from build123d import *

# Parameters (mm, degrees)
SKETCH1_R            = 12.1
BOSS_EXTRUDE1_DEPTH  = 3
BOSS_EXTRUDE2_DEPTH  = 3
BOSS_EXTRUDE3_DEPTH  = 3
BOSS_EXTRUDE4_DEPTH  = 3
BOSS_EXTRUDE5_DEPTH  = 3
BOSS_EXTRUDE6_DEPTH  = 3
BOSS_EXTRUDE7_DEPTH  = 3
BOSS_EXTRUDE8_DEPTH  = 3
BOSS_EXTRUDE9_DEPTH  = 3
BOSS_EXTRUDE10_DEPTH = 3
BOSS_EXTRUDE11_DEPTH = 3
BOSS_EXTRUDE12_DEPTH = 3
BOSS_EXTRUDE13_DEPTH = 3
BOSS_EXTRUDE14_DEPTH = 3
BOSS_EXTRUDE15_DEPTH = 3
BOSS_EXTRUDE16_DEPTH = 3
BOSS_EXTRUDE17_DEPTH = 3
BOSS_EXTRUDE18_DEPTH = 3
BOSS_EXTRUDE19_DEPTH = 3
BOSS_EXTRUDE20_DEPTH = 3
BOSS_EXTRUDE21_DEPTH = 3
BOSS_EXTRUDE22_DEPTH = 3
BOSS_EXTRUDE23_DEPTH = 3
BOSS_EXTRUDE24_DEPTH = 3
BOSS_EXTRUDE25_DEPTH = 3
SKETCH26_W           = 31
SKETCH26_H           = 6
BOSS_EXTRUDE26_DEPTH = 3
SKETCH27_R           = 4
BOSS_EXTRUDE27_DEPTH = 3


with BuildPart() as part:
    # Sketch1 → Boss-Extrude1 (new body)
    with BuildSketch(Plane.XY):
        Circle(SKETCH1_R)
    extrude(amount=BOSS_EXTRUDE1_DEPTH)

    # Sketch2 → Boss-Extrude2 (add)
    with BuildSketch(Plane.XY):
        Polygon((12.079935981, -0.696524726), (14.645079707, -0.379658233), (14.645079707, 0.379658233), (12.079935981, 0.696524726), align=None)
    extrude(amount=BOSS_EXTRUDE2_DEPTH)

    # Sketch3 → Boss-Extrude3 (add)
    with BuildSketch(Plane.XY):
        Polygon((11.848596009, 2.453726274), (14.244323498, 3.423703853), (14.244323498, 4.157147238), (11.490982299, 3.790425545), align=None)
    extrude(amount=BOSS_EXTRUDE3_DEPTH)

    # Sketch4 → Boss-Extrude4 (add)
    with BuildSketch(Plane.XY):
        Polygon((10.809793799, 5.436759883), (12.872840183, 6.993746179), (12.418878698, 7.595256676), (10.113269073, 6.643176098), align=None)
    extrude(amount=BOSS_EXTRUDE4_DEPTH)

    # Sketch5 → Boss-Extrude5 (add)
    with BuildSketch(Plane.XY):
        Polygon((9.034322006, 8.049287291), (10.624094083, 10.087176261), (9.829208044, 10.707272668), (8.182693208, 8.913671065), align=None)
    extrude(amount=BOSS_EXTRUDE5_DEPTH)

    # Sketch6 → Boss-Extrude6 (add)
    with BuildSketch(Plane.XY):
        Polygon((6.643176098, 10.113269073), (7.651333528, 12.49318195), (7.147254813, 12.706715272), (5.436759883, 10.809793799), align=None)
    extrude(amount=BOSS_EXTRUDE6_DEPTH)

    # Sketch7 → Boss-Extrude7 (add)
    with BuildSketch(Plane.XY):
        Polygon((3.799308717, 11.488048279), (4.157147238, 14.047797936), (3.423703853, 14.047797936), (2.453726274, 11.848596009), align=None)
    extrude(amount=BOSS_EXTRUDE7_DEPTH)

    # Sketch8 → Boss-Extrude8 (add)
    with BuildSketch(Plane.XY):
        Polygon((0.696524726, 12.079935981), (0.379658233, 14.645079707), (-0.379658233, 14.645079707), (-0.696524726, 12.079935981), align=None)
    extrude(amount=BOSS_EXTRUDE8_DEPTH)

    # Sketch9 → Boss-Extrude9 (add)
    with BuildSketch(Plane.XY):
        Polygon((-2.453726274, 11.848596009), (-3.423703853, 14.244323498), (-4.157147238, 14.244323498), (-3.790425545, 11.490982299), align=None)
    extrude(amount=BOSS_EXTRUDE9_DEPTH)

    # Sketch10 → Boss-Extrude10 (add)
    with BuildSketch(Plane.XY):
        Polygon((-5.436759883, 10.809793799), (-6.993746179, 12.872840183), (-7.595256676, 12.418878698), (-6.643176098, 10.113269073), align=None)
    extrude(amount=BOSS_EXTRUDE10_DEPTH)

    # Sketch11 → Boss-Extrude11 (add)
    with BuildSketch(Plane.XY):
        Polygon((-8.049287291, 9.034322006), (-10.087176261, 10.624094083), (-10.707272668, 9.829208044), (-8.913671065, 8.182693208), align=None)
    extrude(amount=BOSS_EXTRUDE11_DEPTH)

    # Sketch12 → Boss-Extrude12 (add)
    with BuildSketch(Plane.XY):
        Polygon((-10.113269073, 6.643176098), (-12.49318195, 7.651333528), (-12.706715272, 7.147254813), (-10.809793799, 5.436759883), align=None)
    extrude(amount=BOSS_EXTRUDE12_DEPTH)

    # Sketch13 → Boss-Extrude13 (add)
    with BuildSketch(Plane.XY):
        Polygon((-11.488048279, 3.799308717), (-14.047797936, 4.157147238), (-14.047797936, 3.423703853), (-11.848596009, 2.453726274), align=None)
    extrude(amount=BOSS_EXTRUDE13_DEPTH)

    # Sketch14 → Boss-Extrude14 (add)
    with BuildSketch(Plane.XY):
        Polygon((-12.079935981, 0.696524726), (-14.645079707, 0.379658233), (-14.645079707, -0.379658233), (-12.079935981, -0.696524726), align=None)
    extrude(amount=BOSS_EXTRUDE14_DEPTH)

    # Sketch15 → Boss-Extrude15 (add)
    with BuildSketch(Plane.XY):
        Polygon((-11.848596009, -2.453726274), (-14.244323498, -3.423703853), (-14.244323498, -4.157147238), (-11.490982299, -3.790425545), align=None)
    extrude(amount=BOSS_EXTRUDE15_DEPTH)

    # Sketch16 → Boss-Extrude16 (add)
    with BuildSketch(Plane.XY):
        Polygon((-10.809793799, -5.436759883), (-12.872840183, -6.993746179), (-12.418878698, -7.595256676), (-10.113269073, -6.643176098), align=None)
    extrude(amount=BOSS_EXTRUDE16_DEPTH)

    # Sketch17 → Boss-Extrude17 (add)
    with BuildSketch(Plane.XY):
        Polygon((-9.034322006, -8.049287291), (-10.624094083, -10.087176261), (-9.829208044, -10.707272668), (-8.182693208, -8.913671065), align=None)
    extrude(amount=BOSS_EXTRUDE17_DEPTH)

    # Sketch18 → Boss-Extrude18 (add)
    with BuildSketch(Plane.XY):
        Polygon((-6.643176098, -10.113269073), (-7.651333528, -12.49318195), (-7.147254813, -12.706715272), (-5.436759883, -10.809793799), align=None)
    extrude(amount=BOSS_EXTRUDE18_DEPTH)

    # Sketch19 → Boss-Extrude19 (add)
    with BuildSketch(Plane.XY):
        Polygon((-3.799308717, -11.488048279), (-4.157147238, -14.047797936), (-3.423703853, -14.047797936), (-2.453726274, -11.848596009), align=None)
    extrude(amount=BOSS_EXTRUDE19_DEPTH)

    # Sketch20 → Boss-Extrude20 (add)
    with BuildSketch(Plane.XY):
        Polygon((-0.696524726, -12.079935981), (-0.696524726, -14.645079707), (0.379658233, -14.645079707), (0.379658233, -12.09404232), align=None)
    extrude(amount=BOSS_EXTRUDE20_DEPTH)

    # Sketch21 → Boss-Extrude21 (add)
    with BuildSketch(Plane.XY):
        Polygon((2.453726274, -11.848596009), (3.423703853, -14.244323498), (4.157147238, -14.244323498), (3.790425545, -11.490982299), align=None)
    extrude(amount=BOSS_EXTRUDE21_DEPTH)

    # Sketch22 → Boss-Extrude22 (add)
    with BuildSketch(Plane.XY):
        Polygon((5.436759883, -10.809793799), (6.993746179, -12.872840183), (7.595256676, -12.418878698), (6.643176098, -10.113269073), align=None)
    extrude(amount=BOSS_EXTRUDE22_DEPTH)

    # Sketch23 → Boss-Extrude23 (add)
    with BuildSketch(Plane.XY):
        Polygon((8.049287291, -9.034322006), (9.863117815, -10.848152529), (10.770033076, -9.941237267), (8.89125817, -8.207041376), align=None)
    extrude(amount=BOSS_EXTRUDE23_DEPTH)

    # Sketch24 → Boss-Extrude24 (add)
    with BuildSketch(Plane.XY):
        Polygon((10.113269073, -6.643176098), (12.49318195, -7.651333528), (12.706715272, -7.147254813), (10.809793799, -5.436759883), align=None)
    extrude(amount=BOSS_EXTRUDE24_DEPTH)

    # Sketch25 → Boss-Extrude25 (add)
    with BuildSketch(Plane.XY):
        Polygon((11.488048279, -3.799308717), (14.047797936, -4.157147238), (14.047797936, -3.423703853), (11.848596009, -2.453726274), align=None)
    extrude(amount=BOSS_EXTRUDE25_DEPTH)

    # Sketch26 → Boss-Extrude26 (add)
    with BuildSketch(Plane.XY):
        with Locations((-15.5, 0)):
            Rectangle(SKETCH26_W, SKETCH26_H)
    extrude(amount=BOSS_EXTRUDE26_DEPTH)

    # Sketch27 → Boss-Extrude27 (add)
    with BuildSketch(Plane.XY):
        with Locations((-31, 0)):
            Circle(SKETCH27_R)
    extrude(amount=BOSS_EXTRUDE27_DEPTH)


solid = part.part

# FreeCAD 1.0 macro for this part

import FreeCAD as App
import Part
import Sketcher
Q = App.Units.Quantity


def add_polygon(sketch, points):
    """Adds a closed chain of lines whose ends are joined by coincident constraints."""
    first, n = sketch.GeometryCount, len(points)
    for a, b in zip(points, points[1:] + points[:1]):
        sketch.addGeometry(Part.LineSegment(App.Vector(*a, 0), App.Vector(*b, 0)), False)
    for i in range(n):
        sketch.addConstraint(Sketcher.Constraint("Coincident", first + i, 2, first + (i + 1) % n, 1))

doc = App.newDocument("Part")
body = doc.addObject("PartDesign::Body", "Body")

sketch1 = body.newObject("Sketcher::SketchObject", "Sketch")
sketch1.AttachmentSupport = (doc.getObject("XY_Plane"), [""])
sketch1.MapMode = "FlatFace"
sketch1.addGeometry(Part.Circle(App.Vector(0, 0, 0), App.Vector(0, 0, 1), 12), False)
sketch1.addConstraint(Sketcher.Constraint("Coincident", 0, 3, -1, 1))
sketch1.addConstraint(Sketcher.Constraint("Diameter", 0, 24.2))
pad1 = body.newObject("PartDesign::Pad", "Pad")
pad1.Profile = sketch1
pad1.Length = 3

sketch2 = body.newObject("Sketcher::SketchObject", "Sketch001")
sketch2.AttachmentSupport = (doc.getObject("XY_Plane"), [""])
sketch2.MapMode = "FlatFace"
add_polygon(sketch2, [(12.1, -0.7), (14.6, -0.4), (14.6, 0.4), (12.1, 0.7)])
sketch2.addConstraint(Sketcher.Constraint("Vertical", 1))
sketch2.addConstraint(Sketcher.Constraint("Vertical", 3))
sketch2.addConstraint(Sketcher.Constraint("Equal", 0, 2))
sketch2.addConstraint(Sketcher.Constraint("DistanceY", 3, 2, 3, 1, 1.393049))
sketch2.addConstraint(Sketcher.Constraint("Distance", 0, 2.584641))
sketch2.addConstraint(Sketcher.Constraint("DistanceY", 1, 1, 1, 2, 0.759316))
sketch2.addConstraint(Sketcher.Constraint("DistanceX", -1, 1, 0, 2, 14.64508))
sketch2.addConstraint(Sketcher.Constraint("DistanceY", 0, 2, -1, 1, 0.379658))
pad2 = body.newObject("PartDesign::Pad", "Pad001")
pad2.Profile = sketch2
pad2.Length = 3

sketch3 = body.newObject("Sketcher::SketchObject", "Sketch002")
sketch3.AttachmentSupport = (doc.getObject("XY_Plane"), [""])
sketch3.MapMode = "FlatFace"
add_polygon(sketch3, [(11.8, 2.5), (14.2, 3.4), (14.2, 4.2), (11.5, 3.8)])
sketch3.addConstraint(Sketcher.Constraint("Vertical", 1))
sketch3.addConstraint(Sketcher.Constraint("DistanceY", 3, 2, 2, 2, 1.336699))
sketch3.addConstraint(Sketcher.Constraint("Distance", 0, 2.584641))
sketch3.addConstraint(Sketcher.Constraint("Distance", 3, 1.38371))
sketch3.addConstraint(Sketcher.Constraint("DistanceY", 1, 1, 1, 2, 0.733443))
sketch3.addConstraint(Sketcher.Constraint("DistanceX", 2, 2, 0, 2, 2.753341))
sketch3.addConstraint(Sketcher.Constraint("DistanceX", -1, 1, 0, 2, 14.244323))
sketch3.addConstraint(Sketcher.Constraint("DistanceY", -1, 1, 0, 2, 3.423704))
pad3 = body.newObject("PartDesign::Pad", "Pad002")
pad3.Profile = sketch3
pad3.Length = 3

sketch4 = body.newObject("Sketcher::SketchObject", "Sketch003")
sketch4.AttachmentSupport = (doc.getObject("XY_Plane"), [""])
sketch4.MapMode = "FlatFace"
add_polygon(sketch4, [(10.8, 5.4), (12.9, 7), (12.4, 7.6), (10.1, 6.6)])
sketch4.addConstraint(Sketcher.Constraint("Perpendicular", 0, 1))
sketch4.addConstraint(Sketcher.Constraint("Angle", 3, Q("-60 deg")))
sketch4.addConstraint(Sketcher.Constraint("Distance", 0, 2.584641))
sketch4.addConstraint(Sketcher.Constraint("Distance", 1, 0.753589))
sketch4.addConstraint(Sketcher.Constraint("Distance", 3, 1.393049))
sketch4.addConstraint(Sketcher.Constraint("DistanceX", -1, 1, 0, 2, 12.87284))
sketch4.addConstraint(Sketcher.Constraint("DistanceX", -1, 1, 1, 2, 12.418879))
sketch4.addConstraint(Sketcher.Constraint("DistanceY", -1, 1, 3, 2, 5.43676))
pad4 = body.newObject("PartDesign::Pad", "Pad003")
pad4.Profile = sketch4
pad4.Length = 3

sketch5 = body.newObject("Sketcher::SketchObject", "Sketch004")
sketch5.AttachmentSupport = (doc.getObject("XY_Plane"), [""])
sketch5.MapMode = "FlatFace"
add_polygon(sketch5, [(9, 8), (10.6, 10.1), (9.8, 10.7), (8.2, 8.9)])
sketch5.addConstraint(Sketcher.Constraint("Perpendicular", 0, 1))
sketch5.addConstraint(Sketcher.Constraint("DistanceY", 2, 2, 1, 2, 1.793602))
sketch5.addConstraint(Sketcher.Constraint("DistanceX", 2, 2, 0, 2, 2.441401))
sketch5.addConstraint(Sketcher.Constraint("Distance", 0, 2.584641))
sketch5.addConstraint(Sketcher.Constraint("Distance", 1, 1.008148))
sketch5.addConstraint(Sketcher.Constraint("DistanceX", -1, 1, 1, 2, 9.829208))
sketch5.addConstraint(Sketcher.Constraint("DistanceY", -1, 1, 2, 2, 8.913671))
sketch5.addConstraint(Sketcher.Constraint("DistanceX", 2, 2, 3, 2, 0.851629))
pad5 = body.newObject("PartDesign::Pad", "Pad004")
pad5.Profile = sketch5
pad5.Length = 3

sketch6 = body.newObject("Sketcher::SketchObject", "Sketch005")
sketch6.AttachmentSupport = (doc.getObject("XY_Plane"), [""])
sketch6.MapMode = "FlatFace"
add_polygon(sketch6, [(6.6, 10.1), (7.7, 12.5), (7.1, 12.7), (5.4, 10.8)])
sketch6.addConstraint(Sketcher.Constraint("Perpendicular", 0, 1))
sketch6.addConstraint(Sketcher.Constraint("Angle", 3, Q("-30 deg")))
sketch6.addConstraint(Sketcher.Constraint("Distance", 0, 2.584641))
sketch6.addConstraint(Sketcher.Constraint("Distance", 1, 0.547441))
sketch6.addConstraint(Sketcher.Constraint("Distance", 3, 1.393049))
sketch6.addConstraint(Sketcher.Constraint("DistanceY", -1, 1, 0, 2, 12.493182))
sketch6.addConstraint(Sketcher.Constraint("DistanceX", -1, 1, 2, 2, 5.43676))
sketch6.addConstraint(Sketcher.Constraint("DistanceY", -1, 1, 3, 2, 10.113269))
pad6 = body.newObject("PartDesign::Pad", "Pad005")
pad6.Profile = sketch6
pad6.Length = 3

sketch7 = body.newObject("Sketcher::SketchObject", "Sketch006")
sketch7.AttachmentSupport = (doc.getObject("XY_Plane"), [""])
sketch7.MapMode = "FlatFace"
add_polygon(sketch7, [(3.8, 11.5), (4.2, 14), (3.4, 14), (2.5, 11.8)])
sketch7.addConstraint(Sketcher.Constraint("Horizontal", 1))
sketch7.addConstraint(Sketcher.Constraint("Angle", 3, Q("-15 deg")))
sketch7.addConstraint(Sketcher.Constraint("DistanceY", 2, 2, 1, 2, 2.199202))
sketch7.addConstraint(Sketcher.Constraint("Distance", 0, 2.584641))
sketch7.addConstraint(Sketcher.Constraint("Distance", 2, 2.403611))
sketch7.addConstraint(Sketcher.Constraint("Distance", 3, 1.393049))
sketch7.addConstraint(Sketcher.Constraint("DistanceX", -1, 1, 3, 2, 3.799309))
sketch7.addConstraint(Sketcher.Constraint("DistanceY", -1, 1, 3, 2, 11.488048))
pad7 = body.newObject("PartDesign::Pad", "Pad006")
pad7.Profile = sketch7
pad7.Length = 3

sketch8 = body.newObject("Sketcher::SketchObject", "Sketch007")
sketch8.AttachmentSupport = (doc.getObject("XY_Plane"), [""])
sketch8.MapMode = "FlatFace"
add_polygon(sketch8, [(0.7, 12.1), (0.4, 14.6), (-0.4, 14.6), (-0.7, 12.1)])
sketch8.addConstraint(Sketcher.Constraint("Horizontal", 1))
sketch8.addConstraint(Sketcher.Constraint("Horizontal", 3))
sketch8.addConstraint(Sketcher.Constraint("Equal", 0, 2))
sketch8.addConstraint(Sketcher.Constraint("DistanceX", 3, 1, 3, 2, 1.393049))
sketch8.addConstraint(Sketcher.Constraint("Distance", 0, 2.584641))
sketch8.addConstraint(Sketcher.Constraint("DistanceX", 1, 2, 1, 1, 0.759316))
sketch8.addConstraint(Sketcher.Constraint("DistanceX", -1, 1, 0, 2, 0.379658))
sketch8.addConstraint(Sketcher.Constraint("DistanceY", -1, 1, 0, 2, 14.64508))
pad8 = body.newObject("PartDesign::Pad", "Pad007")
pad8.Profile = sketch8
pad8.Length = 3

sketch9 = body.newObject("Sketcher::SketchObject", "Sketch008")
sketch9.AttachmentSupport = (doc.getObject("XY_Plane"), [""])
sketch9.MapMode = "FlatFace"
add_polygon(sketch9, [(-2.5, 11.8), (-3.4, 14.2), (-4.2, 14.2), (-3.8, 11.5)])
sketch9.addConstraint(Sketcher.Constraint("Horizontal", 1))
sketch9.addConstraint(Sketcher.Constraint("DistanceX", 2, 2, 3, 2, 1.336699))
sketch9.addConstraint(Sketcher.Constraint("Distance", 0, 2.584641))
sketch9.addConstraint(Sketcher.Constraint("Distance", 3, 1.38371))
sketch9.addConstraint(Sketcher.Constraint("DistanceX", 1, 2, 1, 1, 0.733443))
sketch9.addConstraint(Sketcher.Constraint("DistanceX", 2, 2, 0, 2, 0.366722))
sketch9.addConstraint(Sketcher.Constraint("DistanceX", 0, 2, -1, 1, 3.423704))
sketch9.addConstraint(Sketcher.Constraint("DistanceY", -1, 1, 0, 2, 14.244323))
pad9 = body.newObject("PartDesign::Pad", "Pad008")
pad9.Profile = sketch9
pad9.Length = 3

sketch10 = body.newObject("Sketcher::SketchObject", "Sketch009")
sketch10.AttachmentSupport = (doc.getObject("XY_Plane"), [""])
sketch10.MapMode = "FlatFace"
add_polygon(sketch10, [(-5.4, 10.8), (-7, 12.9), (-7.6, 12.4), (-6.6, 10.1)])
sketch10.addConstraint(Sketcher.Constraint("Perpendicular", 0, 1))
sketch10.addConstraint(Sketcher.Constraint("Angle", 3, Q("30 deg")))
sketch10.addConstraint(Sketcher.Constraint("Distance", 0, 2.584641))
sketch10.addConstraint(Sketcher.Constraint("Distance", 1, 0.753589))
sketch10.addConstraint(Sketcher.Constraint("Distance", 3, 1.393049))
sketch10.addConstraint(Sketcher.Constraint("DistanceY", -1, 1, 0, 2, 12.87284))
sketch10.addConstraint(Sketcher.Constraint("DistanceY", -1, 1, 1, 2, 12.418879))
sketch10.addConstraint(Sketcher.Constraint("DistanceX", 3, 2, -1, 1, 5.43676))
pad10 = body.newObject("PartDesign::Pad", "Pad009")
pad10.Profile = sketch10
pad10.Length = 3

sketch11 = body.newObject("Sketcher::SketchObject", "Sketch010")
sketch11.AttachmentSupport = (doc.getObject("XY_Plane"), [""])
sketch11.MapMode = "FlatFace"
add_polygon(sketch11, [(-8, 9), (-10.1, 10.6), (-10.7, 9.8), (-8.9, 8.2)])
sketch11.addConstraint(Sketcher.Constraint("Perpendicular", 0, 1))
sketch11.addConstraint(Sketcher.Constraint("DistanceX", 1, 2, 2, 2, 1.793602))
sketch11.addConstraint(Sketcher.Constraint("DistanceY", 2, 2, 0, 2, 2.441401))
sketch11.addConstraint(Sketcher.Constraint("Distance", 0, 2.584641))
sketch11.addConstraint(Sketcher.Constraint("Distance", 1, 1.008148))
sketch11.addConstraint(Sketcher.Constraint("DistanceY", -1, 1, 1, 2, 9.829208))
sketch11.addConstraint(Sketcher.Constraint("DistanceX", 2, 2, -1, 1, 8.913671))
sketch11.addConstraint(Sketcher.Constraint("DistanceY", 2, 2, 3, 2, 0.851629))
pad11 = body.newObject("PartDesign::Pad", "Pad010")
pad11.Profile = sketch11
pad11.Length = 3

sketch12 = body.newObject("Sketcher::SketchObject", "Sketch011")
sketch12.AttachmentSupport = (doc.getObject("XY_Plane"), [""])
sketch12.MapMode = "FlatFace"
add_polygon(sketch12, [(-10.1, 6.6), (-12.5, 7.7), (-12.7, 7.1), (-10.8, 5.4)])
sketch12.addConstraint(Sketcher.Constraint("Perpendicular", 0, 1))
sketch12.addConstraint(Sketcher.Constraint("Angle", 3, Q("60 deg")))
sketch12.addConstraint(Sketcher.Constraint("Distance", 0, 2.584641))
sketch12.addConstraint(Sketcher.Constraint("Distance", 1, 0.547441))
sketch12.addConstraint(Sketcher.Constraint("Distance", 3, 1.393049))
sketch12.addConstraint(Sketcher.Constraint("DistanceX", 0, 2, -1, 1, 12.493182))
sketch12.addConstraint(Sketcher.Constraint("DistanceY", -1, 1, 2, 2, 5.43676))
sketch12.addConstraint(Sketcher.Constraint("DistanceX", 3, 2, -1, 1, 10.113269))
pad12 = body.newObject("PartDesign::Pad", "Pad011")
pad12.Profile = sketch12
pad12.Length = 3

sketch13 = body.newObject("Sketcher::SketchObject", "Sketch012")
sketch13.AttachmentSupport = (doc.getObject("XY_Plane"), [""])
sketch13.MapMode = "FlatFace"
add_polygon(sketch13, [(-11.5, 3.8), (-14, 4.2), (-14, 3.4), (-11.8, 2.5)])
sketch13.addConstraint(Sketcher.Constraint("Vertical", 1))
sketch13.addConstraint(Sketcher.Constraint("Angle", 3, Q("75 deg")))
sketch13.addConstraint(Sketcher.Constraint("DistanceX", 1, 2, 2, 2, 2.199202))
sketch13.addConstraint(Sketcher.Constraint("Distance", 0, 2.584641))
sketch13.addConstraint(Sketcher.Constraint("Distance", 2, 2.403611))
sketch13.addConstraint(Sketcher.Constraint("Distance", 3, 1.393049))
sketch13.addConstraint(Sketcher.Constraint("DistanceX", 3, 2, -1, 1, 11.488048))
sketch13.addConstraint(Sketcher.Constraint("DistanceY", -1, 1, 3, 2, 3.799309))
pad13 = body.newObject("PartDesign::Pad", "Pad012")
pad13.Profile = sketch13
pad13.Length = 3

sketch14 = body.newObject("Sketcher::SketchObject", "Sketch013")
sketch14.AttachmentSupport = (doc.getObject("XY_Plane"), [""])
sketch14.MapMode = "FlatFace"
add_polygon(sketch14, [(-12.1, 0.7), (-14.6, 0.4), (-14.6, -0.4), (-12.1, -0.7)])
sketch14.addConstraint(Sketcher.Constraint("Vertical", 1))
sketch14.addConstraint(Sketcher.Constraint("Vertical", 3))
sketch14.addConstraint(Sketcher.Constraint("Equal", 0, 2))
sketch14.addConstraint(Sketcher.Constraint("DistanceY", 3, 1, 3, 2, 1.393049))
sketch14.addConstraint(Sketcher.Constraint("Distance", 0, 2.584641))
sketch14.addConstraint(Sketcher.Constraint("DistanceY", 1, 2, 1, 1, 0.759316))
sketch14.addConstraint(Sketcher.Constraint("DistanceX", 0, 2, -1, 1, 14.64508))
sketch14.addConstraint(Sketcher.Constraint("DistanceY", -1, 1, 0, 2, 0.379658))
pad14 = body.newObject("PartDesign::Pad", "Pad013")
pad14.Profile = sketch14
pad14.Length = 3

sketch15 = body.newObject("Sketcher::SketchObject", "Sketch014")
sketch15.AttachmentSupport = (doc.getObject("XY_Plane"), [""])
sketch15.MapMode = "FlatFace"
add_polygon(sketch15, [(-11.8, -2.5), (-14.2, -3.4), (-14.2, -4.2), (-11.5, -3.8)])
sketch15.addConstraint(Sketcher.Constraint("Vertical", 1))
sketch15.addConstraint(Sketcher.Constraint("DistanceY", 2, 2, 3, 2, 1.336699))
sketch15.addConstraint(Sketcher.Constraint("Distance", 0, 2.584641))
sketch15.addConstraint(Sketcher.Constraint("Distance", 3, 1.38371))
sketch15.addConstraint(Sketcher.Constraint("DistanceY", 1, 2, 1, 1, 0.733443))
sketch15.addConstraint(Sketcher.Constraint("DistanceX", 0, 2, 2, 2, 2.753341))
sketch15.addConstraint(Sketcher.Constraint("DistanceX", 0, 2, -1, 1, 14.244323))
sketch15.addConstraint(Sketcher.Constraint("DistanceY", 0, 2, -1, 1, 3.423704))
pad15 = body.newObject("PartDesign::Pad", "Pad014")
pad15.Profile = sketch15
pad15.Length = 3

sketch16 = body.newObject("Sketcher::SketchObject", "Sketch015")
sketch16.AttachmentSupport = (doc.getObject("XY_Plane"), [""])
sketch16.MapMode = "FlatFace"
add_polygon(sketch16, [(-10.8, -5.4), (-12.9, -7), (-12.4, -7.6), (-10.1, -6.6)])
sketch16.addConstraint(Sketcher.Constraint("Perpendicular", 0, 1))
sketch16.addConstraint(Sketcher.Constraint("Angle", 3, Q("120 deg")))
sketch16.addConstraint(Sketcher.Constraint("Distance", 0, 2.584641))
sketch16.addConstraint(Sketcher.Constraint("Distance", 1, 0.753589))
sketch16.addConstraint(Sketcher.Constraint("Distance", 3, 1.393049))
sketch16.addConstraint(Sketcher.Constraint("DistanceX", 0, 2, -1, 1, 12.87284))
sketch16.addConstraint(Sketcher.Constraint("DistanceX", 1, 2, -1, 1, 12.418879))
sketch16.addConstraint(Sketcher.Constraint("DistanceY", 3, 2, -1, 1, 5.43676))
pad16 = body.newObject("PartDesign::Pad", "Pad015")
pad16.Profile = sketch16
pad16.Length = 3

sketch17 = body.newObject("Sketcher::SketchObject", "Sketch016")
sketch17.AttachmentSupport = (doc.getObject("XY_Plane"), [""])
sketch17.MapMode = "FlatFace"
add_polygon(sketch17, [(-9, -8), (-10.6, -10.1), (-9.8, -10.7), (-8.2, -8.9)])
sketch17.addConstraint(Sketcher.Constraint("Perpendicular", 0, 1))
sketch17.addConstraint(Sketcher.Constraint("DistanceY", 1, 2, 2, 2, 1.793602))
sketch17.addConstraint(Sketcher.Constraint("DistanceX", 0, 2, 2, 2, 2.441401))
sketch17.addConstraint(Sketcher.Constraint("Distance", 0, 2.584641))
sketch17.addConstraint(Sketcher.Constraint("Distance", 1, 1.008148))
sketch17.addConstraint(Sketcher.Constraint("DistanceX", 1, 2, -1, 1, 9.829208))
sketch17.addConstraint(Sketcher.Constraint("DistanceY", 2, 2, -1, 1, 8.913671))
sketch17.addConstraint(Sketcher.Constraint("DistanceX", 3, 2, 2, 2, 0.851629))
pad17 = body.newObject("PartDesign::Pad", "Pad016")
pad17.Profile = sketch17
pad17.Length = 3

sketch18 = body.newObject("Sketcher::SketchObject", "Sketch017")
sketch18.AttachmentSupport = (doc.getObject("XY_Plane"), [""])
sketch18.MapMode = "FlatFace"
add_polygon(sketch18, [(-6.6, -10.1), (-7.7, -12.5), (-7.1, -12.7), (-5.4, -10.8)])
sketch18.addConstraint(Sketcher.Constraint("Perpendicular", 0, 1))
sketch18.addConstraint(Sketcher.Constraint("Angle", 3, Q("150 deg")))
sketch18.addConstraint(Sketcher.Constraint("Distance", 0, 2.584641))
sketch18.addConstraint(Sketcher.Constraint("Distance", 1, 0.547441))
sketch18.addConstraint(Sketcher.Constraint("Distance", 3, 1.393049))
sketch18.addConstraint(Sketcher.Constraint("DistanceY", 0, 2, -1, 1, 12.493182))
sketch18.addConstraint(Sketcher.Constraint("DistanceX", 2, 2, -1, 1, 5.43676))
sketch18.addConstraint(Sketcher.Constraint("DistanceY", 3, 2, -1, 1, 10.113269))
pad18 = body.newObject("PartDesign::Pad", "Pad017")
pad18.Profile = sketch18
pad18.Length = 3

sketch19 = body.newObject("Sketcher::SketchObject", "Sketch018")
sketch19.AttachmentSupport = (doc.getObject("XY_Plane"), [""])
sketch19.MapMode = "FlatFace"
add_polygon(sketch19, [(-3.8, -11.5), (-4.2, -14), (-3.4, -14), (-2.5, -11.8)])
sketch19.addConstraint(Sketcher.Constraint("Horizontal", 1))
sketch19.addConstraint(Sketcher.Constraint("Angle", 3, Q("165 deg")))
sketch19.addConstraint(Sketcher.Constraint("DistanceY", 1, 2, 2, 2, 2.199202))
sketch19.addConstraint(Sketcher.Constraint("Distance", 0, 2.584641))
sketch19.addConstraint(Sketcher.Constraint("Distance", 2, 2.403611))
sketch19.addConstraint(Sketcher.Constraint("Distance", 3, 1.393049))
sketch19.addConstraint(Sketcher.Constraint("DistanceX", 3, 2, -1, 1, 3.799309))
sketch19.addConstraint(Sketcher.Constraint("DistanceY", 3, 2, -1, 1, 11.488048))
pad19 = body.newObject("PartDesign::Pad", "Pad018")
pad19.Profile = sketch19
pad19.Length = 3

sketch20 = body.newObject("Sketcher::SketchObject", "Sketch019")
sketch20.AttachmentSupport = (doc.getObject("XY_Plane"), [""])
sketch20.MapMode = "FlatFace"
add_polygon(sketch20, [(-0.7, -12.1), (-0.7, -14.6), (0.4, -14.6), (0.4, -12.1)])
sketch20.addConstraint(Sketcher.Constraint("Vertical", 0))
sketch20.addConstraint(Sketcher.Constraint("Horizontal", 1))
sketch20.addConstraint(Sketcher.Constraint("Vertical", 2))
sketch20.addConstraint(Sketcher.Constraint("DistanceX", 1, 1, 1, 2, 1.076183))
sketch20.addConstraint(Sketcher.Constraint("DistanceY", 0, 2, 0, 1, 2.565144))
sketch20.addConstraint(Sketcher.Constraint("DistanceY", 2, 1, 2, 2, 2.551037))
sketch20.addConstraint(Sketcher.Constraint("DistanceY", 0, 2, -1, 1, 14.64508))
sketch20.addConstraint(Sketcher.Constraint("DistanceX", -1, 1, 1, 2, 0.379658))
pad20 = body.newObject("PartDesign::Pad", "Pad019")
pad20.Profile = sketch20
pad20.Length = 3

sketch21 = body.newObject("Sketcher::SketchObject", "Sketch020")
sketch21.AttachmentSupport = (doc.getObject("XY_Plane"), [""])
sketch21.MapMode = "FlatFace"
add_polygon(sketch21, [(2.5, -11.8), (3.4, -14.2), (4.2, -14.2), (3.8, -11.5)])
sketch21.addConstraint(Sketcher.Constraint("Horizontal", 1))
sketch21.addConstraint(Sketcher.Constraint("DistanceX", 3, 2, 2, 2, 1.336699))
sketch21.addConstraint(Sketcher.Constraint("Distance", 0, 2.584641))
sketch21.addConstraint(Sketcher.Constraint("Distance", 3, 1.38371))
sketch21.addConstraint(Sketcher.Constraint("DistanceX", 1, 1, 1, 2, 0.733443))
sketch21.addConstraint(Sketcher.Constraint("DistanceX", 0, 2, 2, 2, 0.366722))
sketch21.addConstraint(Sketcher.Constraint("DistanceX", -1, 1, 0, 2, 3.423704))
sketch21.addConstraint(Sketcher.Constraint("DistanceY", 0, 2, -1, 1, 14.244323))
pad21 = body.newObject("PartDesign::Pad", "Pad020")
pad21.Profile = sketch21
pad21.Length = 3

sketch22 = body.newObject("Sketcher::SketchObject", "Sketch021")
sketch22.AttachmentSupport = (doc.getObject("XY_Plane"), [""])
sketch22.MapMode = "FlatFace"
add_polygon(sketch22, [(5.4, -10.8), (7, -12.9), (7.6, -12.4), (6.6, -10.1)])
sketch22.addConstraint(Sketcher.Constraint("Perpendicular", 0, 1))
sketch22.addConstraint(Sketcher.Constraint("Angle", 3, Q("-150 deg")))
sketch22.addConstraint(Sketcher.Constraint("Distance", 0, 2.584641))
sketch22.addConstraint(Sketcher.Constraint("Distance", 1, 0.753589))
sketch22.addConstraint(Sketcher.Constraint("Distance", 3, 1.393049))
sketch22.addConstraint(Sketcher.Constraint("DistanceY", 0, 2, -1, 1, 12.87284))
sketch22.addConstraint(Sketcher.Constraint("DistanceY", 1, 2, -1, 1, 12.418879))
sketch22.addConstraint(Sketcher.Constraint("DistanceX", -1, 1, 3, 2, 5.43676))
pad22 = body.newObject("PartDesign::Pad", "Pad021")
pad22.Profile = sketch22
pad22.Length = 3

sketch23 = body.newObject("Sketcher::SketchObject", "Sketch022")
sketch23.AttachmentSupport = (doc.getObject("XY_Plane"), [""])
sketch23.MapMode = "FlatFace"
add_polygon(sketch23, [(8, -9), (9.9, -10.8), (10.8, -9.9), (8.9, -8.2)])
sketch23.addConstraint(Sketcher.Constraint("Perpendicular", 0, 1))
sketch23.addConstraint(Sketcher.Constraint("Angle", 0, Q("-45 deg")))
sketch23.addConstraint(Sketcher.Constraint("Distance", 2, 2.556801))
sketch23.addConstraint(Sketcher.Constraint("Distance", 1, 1.282572))
sketch23.addConstraint(Sketcher.Constraint("DistanceX", -1, 1, 2, 2, 8.891258))
sketch23.addConstraint(Sketcher.Constraint("DistanceY", 2, 2, -1, 1, 8.207041))
sketch23.addConstraint(Sketcher.Constraint("DistanceX", 2, 2, 0, 2, 0.97186))
sketch23.addConstraint(Sketcher.Constraint("DistanceX", 3, 2, 2, 2, 0.841971))
pad23 = body.newObject("PartDesign::Pad", "Pad022")
pad23.Profile = sketch23
pad23.Length = 3

sketch24 = body.newObject("Sketcher::SketchObject", "Sketch023")
sketch24.AttachmentSupport = (doc.getObject("XY_Plane"), [""])
sketch24.MapMode = "FlatFace"
add_polygon(sketch24, [(10.1, -6.6), (12.5, -7.7), (12.7, -7.1), (10.8, -5.4)])
sketch24.addConstraint(Sketcher.Constraint("Perpendicular", 0, 1))
sketch24.addConstraint(Sketcher.Constraint("Angle", 3, Q("-120 deg")))
sketch24.addConstraint(Sketcher.Constraint("Distance", 0, 2.584641))
sketch24.addConstraint(Sketcher.Constraint("Distance", 1, 0.547441))
sketch24.addConstraint(Sketcher.Constraint("Distance", 3, 1.393049))
sketch24.addConstraint(Sketcher.Constraint("DistanceX", -1, 1, 0, 2, 12.493182))
sketch24.addConstraint(Sketcher.Constraint("DistanceY", 2, 2, -1, 1, 5.43676))
sketch24.addConstraint(Sketcher.Constraint("DistanceX", -1, 1, 3, 2, 10.113269))
pad24 = body.newObject("PartDesign::Pad", "Pad023")
pad24.Profile = sketch24
pad24.Length = 3

sketch25 = body.newObject("Sketcher::SketchObject", "Sketch024")
sketch25.AttachmentSupport = (doc.getObject("XY_Plane"), [""])
sketch25.MapMode = "FlatFace"
add_polygon(sketch25, [(11.5, -3.8), (14, -4.2), (14, -3.4), (11.8, -2.5)])
sketch25.addConstraint(Sketcher.Constraint("Vertical", 1))
sketch25.addConstraint(Sketcher.Constraint("Angle", 3, Q("-105 deg")))
sketch25.addConstraint(Sketcher.Constraint("DistanceX", 2, 2, 1, 2, 2.199202))
sketch25.addConstraint(Sketcher.Constraint("Distance", 0, 2.584641))
sketch25.addConstraint(Sketcher.Constraint("Distance", 2, 2.403611))
sketch25.addConstraint(Sketcher.Constraint("Distance", 3, 1.393049))
sketch25.addConstraint(Sketcher.Constraint("DistanceX", -1, 1, 3, 2, 11.488048))
sketch25.addConstraint(Sketcher.Constraint("DistanceY", 3, 2, -1, 1, 3.799309))
pad25 = body.newObject("PartDesign::Pad", "Pad024")
pad25.Profile = sketch25
pad25.Length = 3

sketch26 = body.newObject("Sketcher::SketchObject", "Sketch025")
sketch26.AttachmentSupport = (doc.getObject("XY_Plane"), [""])
sketch26.MapMode = "FlatFace"
add_polygon(sketch26, [(-31, 3), (-31, -3), (0, -3), (0, 3)])
sketch26.addConstraint(Sketcher.Constraint("Vertical", 0))
sketch26.addConstraint(Sketcher.Constraint("Horizontal", 1))
sketch26.addConstraint(Sketcher.Constraint("Vertical", 2))
sketch26.addConstraint(Sketcher.Constraint("Horizontal", 3))
sketch26.addConstraint(Sketcher.Constraint("Symmetric", 1, 2, 2, 2, -1, 1))
sketch26.addConstraint(Sketcher.Constraint("DistanceX", 1, 1, 1, 2, 31.0))
sketch26.addConstraint(Sketcher.Constraint("DistanceY", 0, 2, 0, 1, 6.0))
pad26 = body.newObject("PartDesign::Pad", "Pad025")
pad26.Profile = sketch26
pad26.Length = 3

sketch27 = body.newObject("Sketcher::SketchObject", "Sketch026")
sketch27.AttachmentSupport = (doc.getObject("XY_Plane"), [""])
sketch27.MapMode = "FlatFace"
sketch27.addGeometry(Part.Circle(App.Vector(-31, 0, 0), App.Vector(0, 0, 1), 4), False)
sketch27.addConstraint(Sketcher.Constraint("PointOnObject", 0, 3, -1))
sketch27.addConstraint(Sketcher.Constraint("Diameter", 0, 8.0))
sketch27.addConstraint(Sketcher.Constraint("DistanceX", 0, 3, -1, 1, 31.0))
pad27 = body.newObject("PartDesign::Pad", "Pad026")
pad27.Profile = sketch27
pad27.Length = 3

doc.recompute()
